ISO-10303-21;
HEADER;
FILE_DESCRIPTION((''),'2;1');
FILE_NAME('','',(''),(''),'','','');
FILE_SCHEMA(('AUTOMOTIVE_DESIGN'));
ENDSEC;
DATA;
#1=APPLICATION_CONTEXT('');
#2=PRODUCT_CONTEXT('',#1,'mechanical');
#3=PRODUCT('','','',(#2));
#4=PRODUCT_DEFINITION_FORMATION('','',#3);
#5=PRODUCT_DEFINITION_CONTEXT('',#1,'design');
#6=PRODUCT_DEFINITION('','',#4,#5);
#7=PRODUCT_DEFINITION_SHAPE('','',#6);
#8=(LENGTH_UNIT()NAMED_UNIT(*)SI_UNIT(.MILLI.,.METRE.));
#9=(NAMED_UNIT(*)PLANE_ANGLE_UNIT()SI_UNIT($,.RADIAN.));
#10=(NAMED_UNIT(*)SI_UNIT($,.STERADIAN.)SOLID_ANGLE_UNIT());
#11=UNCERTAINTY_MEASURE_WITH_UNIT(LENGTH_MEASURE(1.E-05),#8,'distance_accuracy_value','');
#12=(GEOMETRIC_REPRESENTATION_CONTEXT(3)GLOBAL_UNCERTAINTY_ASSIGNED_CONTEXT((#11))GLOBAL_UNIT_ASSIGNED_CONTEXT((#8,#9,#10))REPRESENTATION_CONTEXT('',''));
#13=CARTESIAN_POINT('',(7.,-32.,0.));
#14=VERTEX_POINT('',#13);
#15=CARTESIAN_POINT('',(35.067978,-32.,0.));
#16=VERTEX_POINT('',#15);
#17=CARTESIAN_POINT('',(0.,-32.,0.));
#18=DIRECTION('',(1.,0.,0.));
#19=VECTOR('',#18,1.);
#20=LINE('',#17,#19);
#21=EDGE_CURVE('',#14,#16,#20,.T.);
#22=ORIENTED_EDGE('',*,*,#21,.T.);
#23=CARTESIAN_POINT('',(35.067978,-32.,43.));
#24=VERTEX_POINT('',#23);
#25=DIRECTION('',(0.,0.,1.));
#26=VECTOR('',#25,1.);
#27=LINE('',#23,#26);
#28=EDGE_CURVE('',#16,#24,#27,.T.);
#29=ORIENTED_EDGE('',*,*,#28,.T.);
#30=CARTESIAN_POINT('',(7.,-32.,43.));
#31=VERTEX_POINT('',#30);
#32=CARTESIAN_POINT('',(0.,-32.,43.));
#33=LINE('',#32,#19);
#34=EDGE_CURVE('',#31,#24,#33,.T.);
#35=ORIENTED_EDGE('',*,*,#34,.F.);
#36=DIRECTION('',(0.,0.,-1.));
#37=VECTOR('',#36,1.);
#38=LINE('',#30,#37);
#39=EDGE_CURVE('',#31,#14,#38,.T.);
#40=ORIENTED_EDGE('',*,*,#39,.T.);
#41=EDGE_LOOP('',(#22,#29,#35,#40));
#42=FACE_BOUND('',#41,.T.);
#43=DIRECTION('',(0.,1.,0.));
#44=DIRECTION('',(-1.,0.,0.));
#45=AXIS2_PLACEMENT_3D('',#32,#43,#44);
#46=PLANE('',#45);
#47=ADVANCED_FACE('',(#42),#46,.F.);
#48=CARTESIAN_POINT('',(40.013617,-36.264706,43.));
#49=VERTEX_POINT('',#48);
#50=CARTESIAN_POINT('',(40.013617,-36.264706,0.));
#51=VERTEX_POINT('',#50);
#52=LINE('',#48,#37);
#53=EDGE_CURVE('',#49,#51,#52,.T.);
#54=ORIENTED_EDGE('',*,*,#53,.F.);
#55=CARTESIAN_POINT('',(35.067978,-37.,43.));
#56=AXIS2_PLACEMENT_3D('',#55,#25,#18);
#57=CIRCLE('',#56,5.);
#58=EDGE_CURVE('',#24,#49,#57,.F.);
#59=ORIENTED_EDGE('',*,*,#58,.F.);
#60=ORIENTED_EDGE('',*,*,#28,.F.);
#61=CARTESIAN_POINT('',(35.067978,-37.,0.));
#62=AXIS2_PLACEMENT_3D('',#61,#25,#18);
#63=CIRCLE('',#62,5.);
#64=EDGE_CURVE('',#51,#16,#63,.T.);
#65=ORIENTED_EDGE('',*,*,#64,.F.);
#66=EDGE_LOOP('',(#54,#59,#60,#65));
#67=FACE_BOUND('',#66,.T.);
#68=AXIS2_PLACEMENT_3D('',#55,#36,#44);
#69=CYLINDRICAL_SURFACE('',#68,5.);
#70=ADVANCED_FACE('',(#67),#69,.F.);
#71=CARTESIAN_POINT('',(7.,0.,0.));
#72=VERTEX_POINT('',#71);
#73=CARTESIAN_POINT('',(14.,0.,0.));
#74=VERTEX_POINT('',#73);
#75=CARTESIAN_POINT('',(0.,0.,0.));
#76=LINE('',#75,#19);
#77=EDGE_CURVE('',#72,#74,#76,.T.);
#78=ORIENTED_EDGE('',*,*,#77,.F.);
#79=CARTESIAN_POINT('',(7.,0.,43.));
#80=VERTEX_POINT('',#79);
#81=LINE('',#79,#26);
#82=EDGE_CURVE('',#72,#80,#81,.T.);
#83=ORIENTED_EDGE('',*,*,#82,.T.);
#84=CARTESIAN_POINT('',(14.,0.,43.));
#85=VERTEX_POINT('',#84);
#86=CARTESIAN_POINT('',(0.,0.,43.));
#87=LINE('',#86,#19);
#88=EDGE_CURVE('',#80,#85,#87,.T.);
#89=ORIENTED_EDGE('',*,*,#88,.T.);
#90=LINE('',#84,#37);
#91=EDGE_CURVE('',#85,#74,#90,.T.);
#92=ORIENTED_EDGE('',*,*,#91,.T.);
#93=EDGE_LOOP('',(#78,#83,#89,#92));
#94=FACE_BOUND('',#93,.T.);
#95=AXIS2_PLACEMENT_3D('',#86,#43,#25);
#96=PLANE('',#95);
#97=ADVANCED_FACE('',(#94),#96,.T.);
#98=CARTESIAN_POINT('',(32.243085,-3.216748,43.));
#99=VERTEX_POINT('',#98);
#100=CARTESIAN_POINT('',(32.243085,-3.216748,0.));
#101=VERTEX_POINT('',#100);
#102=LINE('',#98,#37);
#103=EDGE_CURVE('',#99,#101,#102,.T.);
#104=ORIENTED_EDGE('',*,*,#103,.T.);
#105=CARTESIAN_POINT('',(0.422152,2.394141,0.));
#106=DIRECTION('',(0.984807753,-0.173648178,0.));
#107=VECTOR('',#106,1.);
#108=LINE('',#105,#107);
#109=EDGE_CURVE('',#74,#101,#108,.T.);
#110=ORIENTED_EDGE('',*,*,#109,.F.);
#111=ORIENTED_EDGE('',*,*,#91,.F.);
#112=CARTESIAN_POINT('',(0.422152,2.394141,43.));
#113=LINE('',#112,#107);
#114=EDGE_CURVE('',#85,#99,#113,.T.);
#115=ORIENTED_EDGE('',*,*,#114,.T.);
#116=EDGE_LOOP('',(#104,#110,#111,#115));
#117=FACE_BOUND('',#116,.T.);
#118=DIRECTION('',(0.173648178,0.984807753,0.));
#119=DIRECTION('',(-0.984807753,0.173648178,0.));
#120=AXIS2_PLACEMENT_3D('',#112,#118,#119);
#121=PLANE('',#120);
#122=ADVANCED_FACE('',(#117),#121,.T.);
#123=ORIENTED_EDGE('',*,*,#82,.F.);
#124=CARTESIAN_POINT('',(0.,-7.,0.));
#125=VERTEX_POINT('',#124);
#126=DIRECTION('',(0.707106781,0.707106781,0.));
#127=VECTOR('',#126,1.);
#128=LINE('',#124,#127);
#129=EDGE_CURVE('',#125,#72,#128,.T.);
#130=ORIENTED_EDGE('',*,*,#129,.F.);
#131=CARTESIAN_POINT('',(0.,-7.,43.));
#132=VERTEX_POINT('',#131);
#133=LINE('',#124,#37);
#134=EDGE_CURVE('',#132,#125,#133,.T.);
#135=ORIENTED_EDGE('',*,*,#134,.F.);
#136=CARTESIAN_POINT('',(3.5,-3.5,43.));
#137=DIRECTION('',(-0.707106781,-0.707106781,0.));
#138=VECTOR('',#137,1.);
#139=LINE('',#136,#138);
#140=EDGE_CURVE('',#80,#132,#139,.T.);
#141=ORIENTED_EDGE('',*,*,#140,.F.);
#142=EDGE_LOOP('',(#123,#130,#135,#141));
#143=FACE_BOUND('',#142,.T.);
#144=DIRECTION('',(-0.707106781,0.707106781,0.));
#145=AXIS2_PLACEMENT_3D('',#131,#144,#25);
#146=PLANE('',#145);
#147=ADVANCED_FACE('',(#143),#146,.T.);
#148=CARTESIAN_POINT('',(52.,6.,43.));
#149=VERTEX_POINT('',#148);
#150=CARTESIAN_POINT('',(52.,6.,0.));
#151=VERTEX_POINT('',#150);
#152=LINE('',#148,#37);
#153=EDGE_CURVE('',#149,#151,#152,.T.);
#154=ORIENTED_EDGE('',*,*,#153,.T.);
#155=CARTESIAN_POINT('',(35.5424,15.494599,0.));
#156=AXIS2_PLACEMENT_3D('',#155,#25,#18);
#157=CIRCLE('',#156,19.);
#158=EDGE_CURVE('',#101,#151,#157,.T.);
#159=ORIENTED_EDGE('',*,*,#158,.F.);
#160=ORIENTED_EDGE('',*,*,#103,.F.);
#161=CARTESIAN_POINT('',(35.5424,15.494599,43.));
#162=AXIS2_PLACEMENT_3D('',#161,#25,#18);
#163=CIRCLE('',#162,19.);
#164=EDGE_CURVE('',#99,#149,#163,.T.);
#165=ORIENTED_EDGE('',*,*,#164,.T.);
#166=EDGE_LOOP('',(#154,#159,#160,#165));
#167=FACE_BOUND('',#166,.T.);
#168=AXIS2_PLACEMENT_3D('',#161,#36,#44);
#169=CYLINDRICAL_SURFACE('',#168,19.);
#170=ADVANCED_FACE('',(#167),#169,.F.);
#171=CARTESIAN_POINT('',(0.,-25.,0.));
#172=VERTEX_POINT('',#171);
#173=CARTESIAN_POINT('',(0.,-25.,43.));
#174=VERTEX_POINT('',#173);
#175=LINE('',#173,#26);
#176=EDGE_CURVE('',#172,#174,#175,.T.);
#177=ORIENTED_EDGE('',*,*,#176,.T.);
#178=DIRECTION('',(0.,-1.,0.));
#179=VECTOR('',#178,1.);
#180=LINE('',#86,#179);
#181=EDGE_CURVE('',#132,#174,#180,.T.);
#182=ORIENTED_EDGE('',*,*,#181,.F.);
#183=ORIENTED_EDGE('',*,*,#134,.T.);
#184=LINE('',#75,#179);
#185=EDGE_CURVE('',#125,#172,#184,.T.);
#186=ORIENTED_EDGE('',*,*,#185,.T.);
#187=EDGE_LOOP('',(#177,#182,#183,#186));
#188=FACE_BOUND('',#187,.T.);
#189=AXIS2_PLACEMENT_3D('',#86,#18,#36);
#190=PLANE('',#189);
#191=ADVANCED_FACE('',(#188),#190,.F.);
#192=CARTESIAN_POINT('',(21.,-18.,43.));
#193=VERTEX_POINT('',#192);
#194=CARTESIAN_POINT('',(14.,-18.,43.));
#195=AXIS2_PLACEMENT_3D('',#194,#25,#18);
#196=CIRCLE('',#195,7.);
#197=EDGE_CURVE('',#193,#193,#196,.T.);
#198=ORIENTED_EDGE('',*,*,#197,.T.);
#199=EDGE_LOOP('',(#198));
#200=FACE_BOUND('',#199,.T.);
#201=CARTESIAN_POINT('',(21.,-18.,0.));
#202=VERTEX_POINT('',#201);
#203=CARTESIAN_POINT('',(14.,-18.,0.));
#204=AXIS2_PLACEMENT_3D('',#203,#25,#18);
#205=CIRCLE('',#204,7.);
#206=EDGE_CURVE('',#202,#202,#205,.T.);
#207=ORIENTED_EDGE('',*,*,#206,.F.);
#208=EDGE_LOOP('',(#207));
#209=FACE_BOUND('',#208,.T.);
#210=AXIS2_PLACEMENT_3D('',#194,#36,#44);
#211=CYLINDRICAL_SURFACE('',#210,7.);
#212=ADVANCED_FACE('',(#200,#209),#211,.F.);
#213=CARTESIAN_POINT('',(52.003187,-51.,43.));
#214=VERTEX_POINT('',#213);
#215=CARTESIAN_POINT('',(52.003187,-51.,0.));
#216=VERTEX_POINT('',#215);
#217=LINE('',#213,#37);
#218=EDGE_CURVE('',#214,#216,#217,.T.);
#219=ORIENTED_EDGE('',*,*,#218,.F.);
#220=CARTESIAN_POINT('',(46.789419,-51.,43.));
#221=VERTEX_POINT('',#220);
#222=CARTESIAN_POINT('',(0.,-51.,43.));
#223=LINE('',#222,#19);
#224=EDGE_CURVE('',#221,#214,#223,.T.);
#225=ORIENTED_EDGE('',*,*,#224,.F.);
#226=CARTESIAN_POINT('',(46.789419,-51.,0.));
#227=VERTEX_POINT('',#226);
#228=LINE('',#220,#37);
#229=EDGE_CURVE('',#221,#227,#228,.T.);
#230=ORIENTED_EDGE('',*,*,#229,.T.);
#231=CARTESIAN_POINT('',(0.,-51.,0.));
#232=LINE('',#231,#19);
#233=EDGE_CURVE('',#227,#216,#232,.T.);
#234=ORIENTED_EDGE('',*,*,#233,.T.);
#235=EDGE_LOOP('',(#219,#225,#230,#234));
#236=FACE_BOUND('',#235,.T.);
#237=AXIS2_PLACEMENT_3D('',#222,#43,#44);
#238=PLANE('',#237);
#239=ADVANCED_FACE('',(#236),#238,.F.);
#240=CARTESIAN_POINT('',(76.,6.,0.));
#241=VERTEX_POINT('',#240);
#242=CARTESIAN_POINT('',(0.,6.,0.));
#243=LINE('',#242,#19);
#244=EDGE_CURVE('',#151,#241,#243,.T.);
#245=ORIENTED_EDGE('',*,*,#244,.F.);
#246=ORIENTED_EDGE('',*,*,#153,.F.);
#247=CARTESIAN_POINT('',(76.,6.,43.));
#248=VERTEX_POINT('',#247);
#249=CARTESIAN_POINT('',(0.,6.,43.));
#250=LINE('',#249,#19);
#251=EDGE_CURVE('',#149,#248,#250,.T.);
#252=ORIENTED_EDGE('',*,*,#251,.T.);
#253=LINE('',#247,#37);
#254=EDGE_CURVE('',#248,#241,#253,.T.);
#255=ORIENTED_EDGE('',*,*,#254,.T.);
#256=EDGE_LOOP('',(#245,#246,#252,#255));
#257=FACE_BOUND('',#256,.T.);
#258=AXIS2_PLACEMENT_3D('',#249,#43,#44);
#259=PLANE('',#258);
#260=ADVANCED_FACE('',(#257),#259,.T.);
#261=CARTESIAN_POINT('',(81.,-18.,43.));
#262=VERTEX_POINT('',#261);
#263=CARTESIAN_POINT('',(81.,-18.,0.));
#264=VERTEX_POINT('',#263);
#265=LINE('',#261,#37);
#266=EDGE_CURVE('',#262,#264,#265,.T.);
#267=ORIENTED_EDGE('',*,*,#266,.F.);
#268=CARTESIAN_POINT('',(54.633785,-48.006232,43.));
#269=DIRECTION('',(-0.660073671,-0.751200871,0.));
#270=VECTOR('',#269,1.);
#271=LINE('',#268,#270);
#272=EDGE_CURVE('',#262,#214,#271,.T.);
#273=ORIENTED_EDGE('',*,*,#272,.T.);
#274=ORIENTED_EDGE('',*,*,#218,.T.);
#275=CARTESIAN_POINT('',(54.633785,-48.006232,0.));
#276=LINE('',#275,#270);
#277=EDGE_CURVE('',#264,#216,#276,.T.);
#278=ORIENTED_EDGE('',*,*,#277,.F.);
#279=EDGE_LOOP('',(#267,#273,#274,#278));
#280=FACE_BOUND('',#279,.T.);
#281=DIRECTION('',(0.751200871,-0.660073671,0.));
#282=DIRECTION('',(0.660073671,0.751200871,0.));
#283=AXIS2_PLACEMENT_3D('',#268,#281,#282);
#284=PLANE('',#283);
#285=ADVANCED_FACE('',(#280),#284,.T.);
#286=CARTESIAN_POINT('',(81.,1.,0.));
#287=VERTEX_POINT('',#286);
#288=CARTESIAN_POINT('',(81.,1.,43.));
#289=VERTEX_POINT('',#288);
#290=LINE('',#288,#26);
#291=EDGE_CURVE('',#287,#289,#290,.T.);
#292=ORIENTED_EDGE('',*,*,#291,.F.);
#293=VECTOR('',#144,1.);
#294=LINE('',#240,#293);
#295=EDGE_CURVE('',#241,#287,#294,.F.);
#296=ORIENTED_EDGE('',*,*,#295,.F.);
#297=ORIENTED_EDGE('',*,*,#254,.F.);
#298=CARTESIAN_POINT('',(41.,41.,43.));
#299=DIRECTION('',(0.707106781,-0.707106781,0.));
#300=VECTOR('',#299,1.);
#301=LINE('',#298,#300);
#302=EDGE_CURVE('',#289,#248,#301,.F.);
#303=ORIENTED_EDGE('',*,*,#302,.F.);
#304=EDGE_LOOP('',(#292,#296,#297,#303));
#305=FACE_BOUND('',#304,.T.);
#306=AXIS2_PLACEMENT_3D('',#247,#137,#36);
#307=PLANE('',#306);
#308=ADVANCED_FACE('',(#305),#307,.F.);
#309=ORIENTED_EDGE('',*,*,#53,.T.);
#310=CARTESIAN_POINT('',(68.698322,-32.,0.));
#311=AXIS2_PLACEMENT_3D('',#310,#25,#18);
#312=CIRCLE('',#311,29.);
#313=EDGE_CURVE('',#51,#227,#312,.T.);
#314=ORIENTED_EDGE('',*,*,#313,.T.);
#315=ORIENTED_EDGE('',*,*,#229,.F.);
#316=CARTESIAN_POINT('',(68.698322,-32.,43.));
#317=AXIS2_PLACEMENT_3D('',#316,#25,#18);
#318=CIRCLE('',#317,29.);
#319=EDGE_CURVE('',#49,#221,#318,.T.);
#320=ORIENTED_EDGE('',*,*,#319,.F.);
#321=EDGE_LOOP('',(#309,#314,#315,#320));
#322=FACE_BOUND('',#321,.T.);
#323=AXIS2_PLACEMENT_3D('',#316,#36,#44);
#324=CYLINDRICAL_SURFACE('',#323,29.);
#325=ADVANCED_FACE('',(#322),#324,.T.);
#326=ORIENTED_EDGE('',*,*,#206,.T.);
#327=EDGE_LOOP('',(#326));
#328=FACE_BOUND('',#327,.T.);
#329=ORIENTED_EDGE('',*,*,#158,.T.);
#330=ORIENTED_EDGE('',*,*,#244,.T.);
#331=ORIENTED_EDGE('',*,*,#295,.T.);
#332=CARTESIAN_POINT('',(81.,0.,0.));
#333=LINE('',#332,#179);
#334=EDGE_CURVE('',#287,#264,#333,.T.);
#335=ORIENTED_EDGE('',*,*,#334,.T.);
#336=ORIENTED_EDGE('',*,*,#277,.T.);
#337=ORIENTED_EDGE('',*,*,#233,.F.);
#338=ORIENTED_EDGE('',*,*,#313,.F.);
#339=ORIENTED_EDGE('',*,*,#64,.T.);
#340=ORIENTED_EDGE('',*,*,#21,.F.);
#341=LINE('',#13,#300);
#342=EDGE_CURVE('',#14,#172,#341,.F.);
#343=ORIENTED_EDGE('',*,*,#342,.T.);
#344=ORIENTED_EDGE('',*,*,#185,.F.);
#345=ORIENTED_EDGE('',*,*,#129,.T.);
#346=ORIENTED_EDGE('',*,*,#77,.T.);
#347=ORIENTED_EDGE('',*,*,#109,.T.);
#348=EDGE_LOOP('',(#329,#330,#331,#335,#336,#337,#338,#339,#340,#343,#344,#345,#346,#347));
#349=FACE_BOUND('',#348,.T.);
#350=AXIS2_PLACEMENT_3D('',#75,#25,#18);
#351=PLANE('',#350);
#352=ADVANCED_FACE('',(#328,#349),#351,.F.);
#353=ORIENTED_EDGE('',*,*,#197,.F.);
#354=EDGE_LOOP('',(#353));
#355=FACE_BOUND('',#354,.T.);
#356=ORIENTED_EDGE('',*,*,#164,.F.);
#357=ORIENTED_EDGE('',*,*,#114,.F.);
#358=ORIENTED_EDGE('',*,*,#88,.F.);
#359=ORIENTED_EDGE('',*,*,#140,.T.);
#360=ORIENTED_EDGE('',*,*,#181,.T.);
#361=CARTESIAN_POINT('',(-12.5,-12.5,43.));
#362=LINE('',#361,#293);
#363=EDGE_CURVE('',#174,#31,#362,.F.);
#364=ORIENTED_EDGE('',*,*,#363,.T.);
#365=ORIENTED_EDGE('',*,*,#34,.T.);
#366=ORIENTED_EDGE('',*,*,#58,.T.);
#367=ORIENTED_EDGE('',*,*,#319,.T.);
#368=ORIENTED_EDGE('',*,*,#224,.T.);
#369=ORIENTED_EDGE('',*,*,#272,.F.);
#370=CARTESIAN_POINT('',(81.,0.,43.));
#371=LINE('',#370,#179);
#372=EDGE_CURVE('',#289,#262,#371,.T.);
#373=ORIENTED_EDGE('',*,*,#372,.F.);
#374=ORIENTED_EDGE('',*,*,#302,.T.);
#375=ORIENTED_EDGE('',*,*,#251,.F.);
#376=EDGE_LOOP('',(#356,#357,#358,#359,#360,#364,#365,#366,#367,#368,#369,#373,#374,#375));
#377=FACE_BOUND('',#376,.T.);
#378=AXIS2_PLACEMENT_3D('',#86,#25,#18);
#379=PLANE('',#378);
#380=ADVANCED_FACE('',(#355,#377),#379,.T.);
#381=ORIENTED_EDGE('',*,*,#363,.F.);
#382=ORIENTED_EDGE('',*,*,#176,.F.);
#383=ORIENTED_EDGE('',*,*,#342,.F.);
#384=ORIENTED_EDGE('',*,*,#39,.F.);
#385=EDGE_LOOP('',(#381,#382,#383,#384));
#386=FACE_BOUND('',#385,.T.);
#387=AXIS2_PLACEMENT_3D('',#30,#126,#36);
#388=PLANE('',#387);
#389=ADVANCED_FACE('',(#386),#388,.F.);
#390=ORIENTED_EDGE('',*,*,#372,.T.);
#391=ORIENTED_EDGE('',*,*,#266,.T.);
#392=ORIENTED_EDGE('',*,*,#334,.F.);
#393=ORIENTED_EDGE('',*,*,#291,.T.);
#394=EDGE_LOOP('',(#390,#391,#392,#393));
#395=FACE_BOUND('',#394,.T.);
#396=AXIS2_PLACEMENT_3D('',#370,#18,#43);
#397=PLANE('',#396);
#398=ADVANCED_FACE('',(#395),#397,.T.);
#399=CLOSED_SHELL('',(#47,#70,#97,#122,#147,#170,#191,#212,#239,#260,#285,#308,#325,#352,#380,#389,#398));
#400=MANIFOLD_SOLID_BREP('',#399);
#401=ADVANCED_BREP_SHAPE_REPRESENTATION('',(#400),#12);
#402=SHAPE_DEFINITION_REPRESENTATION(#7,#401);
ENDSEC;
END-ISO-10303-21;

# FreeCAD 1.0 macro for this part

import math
import FreeCAD as App
import Part
import Sketcher

V = App.Vector
Q = App.Units.Quantity


def edges_at(feature, points):
    """Names of the edges that pass closest to the given points."""
    edges = feature.Shape.Edges
    near = lambda p: min(range(len(edges)), key=lambda i: edges[i].distToShape(Part.Vertex(*p))[0])
    return sorted({f"Edge{near(p) + 1}" for p in points})

doc = App.newDocument("Part")
body = doc.addObject("PartDesign::Body", "Body")

# Sketch on XY plane
sketch1 = body.newObject("Sketcher::SketchObject", "Sketch")
sketch1.AttachmentSupport = (doc.getObject("XY_Plane"), [""])
sketch1.MapMode = "FlatFace"
sketch1.addGeometry([
    Part.LineSegment(V(14, 0, 0), V(0, 0, 0)),  # 0
    Part.LineSegment(V(0, 0, 0), V(0, -32, 0)),  # 1
    Part.LineSegment(V(0, -32, 0), V(40, -32, 0)),  # 2
    Part.ArcOfCircle(Part.Circle(V(69, -32, 0), V(0, 0, 1), 29), math.radians(-180), math.radians(-139)),  # 3
    Part.LineSegment(V(47, -51, 0), V(52, -51, 0)),  # 4
    Part.LineSegment(V(52, -51, 0), V(81, -18, 0)),  # 5
    Part.LineSegment(V(81, -18, 0), V(81, 6, 0)),  # 6
    Part.LineSegment(V(81, 6, 0), V(52, 6, 0)),  # 7
    Part.ArcOfCircle(Part.Circle(V(36, 15, 0), V(0, 0, 1), 19), math.radians(-100), math.radians(-30)),  # 8
    Part.LineSegment(V(32, -3, 0), V(14, 0, 0)),  # 9
    Part.Circle(V(14, -18, 0), V(0, 0, 1), 7),  # 10
], False)
sketch1.addConstraint([
    Sketcher.Constraint("Coincident", 0, 2, 1, 1),
    Sketcher.Constraint("Coincident", 1, 2, 2, 1),
    Sketcher.Constraint("Coincident", 2, 2, 3, 1),
    Sketcher.Constraint("Coincident", 3, 2, 4, 1),
    Sketcher.Constraint("Coincident", 4, 2, 5, 1),
    Sketcher.Constraint("Coincident", 5, 2, 6, 1),
    Sketcher.Constraint("Coincident", 6, 2, 7, 1),
    Sketcher.Constraint("Coincident", 7, 2, 8, 2),
    Sketcher.Constraint("Tangent", 8, 1, 9, 1),
    Sketcher.Constraint("Coincident", 9, 2, 0, 1),
    Sketcher.Constraint("Horizontal", 0),
    Sketcher.Constraint("Vertical", 1),
    Sketcher.Constraint("Horizontal", 2),
    Sketcher.Constraint("Horizontal", 4),
    Sketcher.Constraint("Vertical", 6),
    Sketcher.Constraint("Horizontal", 7),
    Sketcher.Constraint("Coincident", 0, 2, -1, 1),
    Sketcher.Constraint("Horizontal", 3, 3, 1, 2),
    Sketcher.Constraint("Horizontal", 10, 3, 5, 2),
    Sketcher.Constraint("Vertical", 10, 3, 9, 2),
    Sketcher.Constraint("Diameter", 10, Q("14 mm")),
    Sketcher.Constraint("Radius", 3, Q("29 mm")),
    Sketcher.Constraint("Radius", 8, Q("19 mm")),
    Sketcher.Constraint("DistanceX", 0, 2, 0, 1, Q("14 mm")),
    Sketcher.Constraint("DistanceX", 7, 2, 7, 1, Q("29 mm")),
    Sketcher.Constraint("DistanceY", 1, 2, 1, 1, Q("32 mm")),
    Sketcher.Constraint("DistanceY", 6, 1, 6, 2, Q("24 mm")),
    Sketcher.Constraint("Angle", 9, Q("170 deg")),
    Sketcher.Constraint("DistanceY", 10, 3, -1, 1, Q("18 mm")),
    Sketcher.Constraint("DistanceY", 3, 2, -1, 1, Q("51 mm")),
    Sketcher.Constraint("DistanceX", -1, 1, 5, 2, Q("81 mm")),
    Sketcher.Constraint("DistanceX", 2, 1, 2, 2, Q("39.698321 mm")),
    Sketcher.Constraint("DistanceX", 4, 1, 4, 2, Q("5.213768 mm")),
])
pad1 = body.newObject("PartDesign::Pad", "Pad")
pad1.Profile = sketch1
pad1.Length = 43
doc.recompute()

chamfer = body.newObject("PartDesign::Chamfer", "Chamfer")
chamfer.Base = (pad1, edges_at(pad1, [(0, 0, 21.5)]))
chamfer.Size = 7
doc.recompute()

chamfer2 = body.newObject("PartDesign::Chamfer", "Chamfer001")
chamfer2.Base = (chamfer, edges_at(chamfer, [(0, -32, 21.5)]))
chamfer2.Size = 7
doc.recompute()

chamfer3 = body.newObject("PartDesign::Chamfer", "Chamfer002")
chamfer3.Base = (chamfer2, edges_at(chamfer2, [(81, 6, 21.5)]))
chamfer3.Size = 5
doc.recompute()

fillet = body.newObject("PartDesign::Fillet", "Fillet")
fillet.Base = (chamfer3, edges_at(chamfer3, [(39.698, -32, 21.5)]))
fillet.Radius = 5

doc.recompute()
